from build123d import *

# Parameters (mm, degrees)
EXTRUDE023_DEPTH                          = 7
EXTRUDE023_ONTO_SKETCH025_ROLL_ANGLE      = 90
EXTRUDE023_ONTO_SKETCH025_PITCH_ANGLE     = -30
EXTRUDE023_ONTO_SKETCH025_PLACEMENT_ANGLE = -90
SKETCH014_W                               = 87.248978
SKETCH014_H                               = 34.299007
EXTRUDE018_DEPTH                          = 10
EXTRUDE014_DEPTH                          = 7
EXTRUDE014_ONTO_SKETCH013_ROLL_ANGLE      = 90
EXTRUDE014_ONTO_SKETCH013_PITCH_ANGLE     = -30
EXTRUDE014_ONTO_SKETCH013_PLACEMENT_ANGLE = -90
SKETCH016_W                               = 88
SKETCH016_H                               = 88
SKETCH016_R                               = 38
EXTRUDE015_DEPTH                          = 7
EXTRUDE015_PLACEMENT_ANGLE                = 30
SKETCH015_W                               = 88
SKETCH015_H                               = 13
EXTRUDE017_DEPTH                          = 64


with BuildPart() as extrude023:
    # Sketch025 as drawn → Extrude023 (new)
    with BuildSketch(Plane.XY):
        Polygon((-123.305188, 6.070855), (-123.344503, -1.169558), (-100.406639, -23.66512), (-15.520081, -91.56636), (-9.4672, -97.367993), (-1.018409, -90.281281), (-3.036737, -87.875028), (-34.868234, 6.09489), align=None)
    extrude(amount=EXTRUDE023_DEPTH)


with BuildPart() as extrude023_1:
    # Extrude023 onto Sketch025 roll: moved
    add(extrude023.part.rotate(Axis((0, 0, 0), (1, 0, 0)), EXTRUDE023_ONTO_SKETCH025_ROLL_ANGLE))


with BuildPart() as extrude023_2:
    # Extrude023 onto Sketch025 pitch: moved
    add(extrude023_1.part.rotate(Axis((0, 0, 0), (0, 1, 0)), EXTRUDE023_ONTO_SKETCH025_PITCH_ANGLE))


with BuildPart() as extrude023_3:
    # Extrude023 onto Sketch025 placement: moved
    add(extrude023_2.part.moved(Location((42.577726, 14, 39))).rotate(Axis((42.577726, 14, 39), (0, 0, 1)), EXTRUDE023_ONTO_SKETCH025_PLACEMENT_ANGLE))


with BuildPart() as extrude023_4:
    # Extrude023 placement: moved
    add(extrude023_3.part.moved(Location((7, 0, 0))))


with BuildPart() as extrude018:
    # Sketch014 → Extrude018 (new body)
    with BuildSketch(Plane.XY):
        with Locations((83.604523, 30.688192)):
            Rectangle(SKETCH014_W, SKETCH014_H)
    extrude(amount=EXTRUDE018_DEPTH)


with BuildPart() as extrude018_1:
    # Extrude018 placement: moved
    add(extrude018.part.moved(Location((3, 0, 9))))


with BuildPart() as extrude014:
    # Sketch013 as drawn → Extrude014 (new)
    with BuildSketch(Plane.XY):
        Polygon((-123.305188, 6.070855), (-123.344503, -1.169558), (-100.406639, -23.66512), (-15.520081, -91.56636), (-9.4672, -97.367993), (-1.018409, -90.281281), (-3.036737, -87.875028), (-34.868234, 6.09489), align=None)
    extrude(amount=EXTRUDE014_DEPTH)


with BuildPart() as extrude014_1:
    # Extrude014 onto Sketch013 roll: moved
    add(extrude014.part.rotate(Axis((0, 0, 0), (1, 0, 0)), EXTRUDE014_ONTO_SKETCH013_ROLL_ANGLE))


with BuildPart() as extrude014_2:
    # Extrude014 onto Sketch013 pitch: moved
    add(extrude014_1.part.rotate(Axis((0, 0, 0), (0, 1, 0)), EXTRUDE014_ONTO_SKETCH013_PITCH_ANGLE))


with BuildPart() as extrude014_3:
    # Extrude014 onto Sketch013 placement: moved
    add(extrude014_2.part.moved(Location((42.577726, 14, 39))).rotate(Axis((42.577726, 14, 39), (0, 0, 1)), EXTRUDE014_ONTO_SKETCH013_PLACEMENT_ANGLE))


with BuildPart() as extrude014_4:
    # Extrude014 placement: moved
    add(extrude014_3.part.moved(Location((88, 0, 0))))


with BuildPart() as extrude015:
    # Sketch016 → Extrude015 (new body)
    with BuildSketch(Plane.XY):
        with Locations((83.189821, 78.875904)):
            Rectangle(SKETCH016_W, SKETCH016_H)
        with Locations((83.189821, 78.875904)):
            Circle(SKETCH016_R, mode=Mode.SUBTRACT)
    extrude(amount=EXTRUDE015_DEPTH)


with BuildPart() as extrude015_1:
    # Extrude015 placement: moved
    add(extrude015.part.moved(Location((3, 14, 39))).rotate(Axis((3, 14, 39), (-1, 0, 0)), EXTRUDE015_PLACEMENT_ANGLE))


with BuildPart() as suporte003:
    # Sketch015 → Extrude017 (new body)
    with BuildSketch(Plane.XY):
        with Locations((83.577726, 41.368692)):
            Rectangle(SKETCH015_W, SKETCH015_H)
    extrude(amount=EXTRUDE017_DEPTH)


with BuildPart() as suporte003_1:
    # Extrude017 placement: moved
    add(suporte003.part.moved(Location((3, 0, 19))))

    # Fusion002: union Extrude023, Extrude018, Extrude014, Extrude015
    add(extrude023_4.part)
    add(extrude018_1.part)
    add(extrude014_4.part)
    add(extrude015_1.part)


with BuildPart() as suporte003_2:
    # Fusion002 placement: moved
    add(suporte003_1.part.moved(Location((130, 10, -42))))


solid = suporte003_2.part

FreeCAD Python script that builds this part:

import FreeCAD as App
import Part
import Sketcher
from FreeCAD import Vector
Q = App.Units.Quantity

doc = App.newDocument("Part")
params = doc.addObject("Spreadsheet::Sheet", "Params")
for row, (alias, value) in enumerate([
    ("pad1_length", "7 mm"),
    ("pad2_length", "10 mm"),
    ("pad3_length", "7 mm"),
    ("sketch4_diameter", "76 mm"),
    ("sketch4_width", "88 mm"),
    ("pad4_length", "7 mm"),
    ("sketch5_width", "88 mm"),
    ("sketch5_height", "13 mm"),
    ("pad5_length", "64 mm"),
], start=1):
    params.set(f"A{row}", alias)
    params.set(f"B{row}", "=" + value)
    params.setAlias(f"B{row}", alias)

body = doc.addObject("PartDesign::Body", "Body")

sketch1 = doc.addObject("Sketcher::SketchObject", "Sketch")
body.addObject(sketch1)
sketch1.AttachmentSupport = (doc.XY_Plane, [""])
sketch1.MapMode = "FlatFace"
sketch1.addGeometry([
    Part.LineSegment(Vector(-123.3, 6.1, 0), Vector(-123.3, -1.2, 0)),
    Part.LineSegment(Vector(-123.3, -1.2, 0), Vector(-100.4, -23.7, 0)),
    Part.LineSegment(Vector(-100.4, -23.7, 0), Vector(-15.5, -91.6, 0)),
    Part.LineSegment(Vector(-15.5, -91.6, 0), Vector(-9.5, -97.4, 0)),
    Part.LineSegment(Vector(-9.5, -97.4, 0), Vector(-1, -90.3, 0)),
    Part.LineSegment(Vector(-1, -90.3, 0), Vector(-3, -87.9, 0)),
    Part.LineSegment(Vector(-3, -87.9, 0), Vector(-34.9, 6.1, 0)),
    Part.LineSegment(Vector(-34.9, 6.1, 0), Vector(-123.3, 6.1, 0)),
], False)
sketch1.addConstraint([
    Sketcher.Constraint("Coincident", 0, 2, 1, 1),
    Sketcher.Constraint("Coincident", 1, 2, 2, 1),
    Sketcher.Constraint("Coincident", 2, 2, 3, 1),
    Sketcher.Constraint("Coincident", 3, 2, 4, 1),
    Sketcher.Constraint("Coincident", 4, 2, 5, 1),
    Sketcher.Constraint("Coincident", 5, 2, 6, 1),
    Sketcher.Constraint("Coincident", 6, 2, 7, 1),
    Sketcher.Constraint("Coincident", 7, 2, 0, 1),
    Sketcher.Constraint("Perpendicular", 4, 5),
    Sketcher.Constraint("Distance", 4, Q("11.0274 mm")),
    Sketcher.Constraint("DistanceX", 3, 2, -1, 1, Q("9.4672 mm")),
    Sketcher.Constraint("DistanceX", 1, 2, 5, 2, Q("97.369902 mm")),
    Sketcher.Constraint("Distance", 0, Q("7.24052 mm")),
    Sketcher.Constraint("Distance", 3, Q("8.38429 mm")),
    Sketcher.Constraint("DistanceY", 0, 2, -1, 1, Q("1.169558 mm")),
    Sketcher.Constraint("DistanceX", 1, 2, -1, 1, Q("100.406639 mm")),
    Sketcher.Constraint("DistanceY", 1, 2, -1, 1, Q("23.66512 mm")),
    Sketcher.Constraint("DistanceX", 2, 2, -1, 1, Q("15.520081 mm")),
    Sketcher.Constraint("DistanceY", 2, 2, -1, 1, Q("91.56636 mm")),
    Sketcher.Constraint("DistanceX", 4, 2, -1, 1, Q("1.018409 mm")),
    Sketcher.Constraint("DistanceY", -1, 1, 6, 2, Q("6.09489 mm")),
    Sketcher.Constraint("DistanceX", 7, 2, -1, 1, Q("123.305188 mm")),
    Sketcher.Constraint("DistanceX", 0, 2, 2, 2, Q("107.824422 mm")),
    Sketcher.Constraint("DistanceX", 0, 2, 6, 2, Q("88.476269 mm")),
])
pad1 = doc.addObject("PartDesign::Pad", "Pad")
body.addObject(pad1)
pad1.Profile = sketch1
pad1.setExpression("Length", "Params.pad1_length")
body2 = doc.addObject("PartDesign::Body", "Body001")
doc.recompute()

body.Placement = App.Placement(Vector(0, 0, 0), App.Rotation(Vector(1, 0, 0), 90))
boolean = doc.addObject("PartDesign::Boolean", "Boolean")
body2.addObject(boolean)
boolean.Type = "Fuse"
boolean.addObjects([body])
body3 = doc.addObject("PartDesign::Body", "Body002")
doc.recompute()

body2.Placement = App.Placement(Vector(0, 0, 0), App.Rotation(Vector(0, 1, 0), 330))
boolean2 = doc.addObject("PartDesign::Boolean", "Boolean001")
body3.addObject(boolean2)
boolean2.Type = "Fuse"
boolean2.addObjects([body2])
body4 = doc.addObject("PartDesign::Body", "Body003")
doc.recompute()

body3.Placement = App.Placement(Vector(42.577726, 14, 39), App.Rotation(Vector(0, 0, 1), 270))
boolean3 = doc.addObject("PartDesign::Boolean", "Boolean002")
body4.addObject(boolean3)
boolean3.Type = "Fuse"
boolean3.addObjects([body3])
body5 = doc.addObject("PartDesign::Body", "Body004")
doc.recompute()

body4.Placement = App.Placement(Vector(7, 0, 0), App.Rotation(Vector(0, 0, 1), 0))
boolean4 = doc.addObject("PartDesign::Boolean", "Boolean003")
body5.addObject(boolean4)
boolean4.Type = "Fuse"
boolean4.addObjects([body4])
body6 = doc.addObject("PartDesign::Body", "Body005")

sketch2 = doc.addObject("Sketcher::SketchObject", "Sketch001")
body6.addObject(sketch2)
sketch2.AttachmentSupport = (doc.getObject("XY_Plane005"), [""])
sketch2.MapMode = "FlatFace"
sketch2.addGeometry([
    Part.LineSegment(Vector(40, 48, 0), Vector(40, 14, 0)),
    Part.LineSegment(Vector(40, 14, 0), Vector(127, 14, 0)),
    Part.LineSegment(Vector(127, 14, 0), Vector(127, 48, 0)),
    Part.LineSegment(Vector(127, 48, 0), Vector(40, 48, 0)),
], False)
sketch2.addConstraint([
    Sketcher.Constraint("Coincident", 0, 2, 1, 1),
    Sketcher.Constraint("Coincident", 1, 2, 2, 1),
    Sketcher.Constraint("Coincident", 2, 2, 3, 1),
    Sketcher.Constraint("Coincident", 3, 2, 0, 1),
    Sketcher.Constraint("Vertical", 0),
    Sketcher.Constraint("Horizontal", 1),
    Sketcher.Constraint("Vertical", 2),
    Sketcher.Constraint("Horizontal", 3),
    Sketcher.Constraint("DistanceX", 1, 1, 1, 2, Q("87.248978 mm")),
    Sketcher.Constraint("DistanceY", 0, 2, 0, 1, Q("34.299007 mm")),
    Sketcher.Constraint("DistanceY", -1, 1, 0, 2, Q("13.538688 mm")),
    Sketcher.Constraint("DistanceX", -1, 1, 1, 2, Q("127.229012 mm")),
])
pad2 = doc.addObject("PartDesign::Pad", "Pad001")
body6.addObject(pad2)
pad2.Profile = sketch2
pad2.setExpression("Length", "Params.pad2_length")
body7 = doc.addObject("PartDesign::Body", "Body006")
doc.recompute()

body6.Placement = App.Placement(Vector(3, 0, 9), App.Rotation(Vector(0, 0, 1), 0))
boolean5 = doc.addObject("PartDesign::Boolean", "Boolean004")
body7.addObject(boolean5)
boolean5.Type = "Fuse"
boolean5.addObjects([body6])
body8 = doc.addObject("PartDesign::Body", "Body007")

sketch3 = doc.addObject("Sketcher::SketchObject", "Sketch002")
body8.addObject(sketch3)
sketch3.AttachmentSupport = (doc.getObject("XY_Plane007"), [""])
sketch3.MapMode = "FlatFace"
sketch3.addGeometry([
    Part.LineSegment(Vector(-123.3, 6.1, 0), Vector(-123.3, -1.2, 0)),
    Part.LineSegment(Vector(-123.3, -1.2, 0), Vector(-100.4, -23.7, 0)),
    Part.LineSegment(Vector(-100.4, -23.7, 0), Vector(-15.5, -91.6, 0)),
    Part.LineSegment(Vector(-15.5, -91.6, 0), Vector(-9.5, -97.4, 0)),
    Part.LineSegment(Vector(-9.5, -97.4, 0), Vector(-1, -90.3, 0)),
    Part.LineSegment(Vector(-1, -90.3, 0), Vector(-3, -87.9, 0)),
    Part.LineSegment(Vector(-3, -87.9, 0), Vector(-34.9, 6.1, 0)),
    Part.LineSegment(Vector(-34.9, 6.1, 0), Vector(-123.3, 6.1, 0)),
], False)
sketch3.addConstraint([
    Sketcher.Constraint("Coincident", 0, 2, 1, 1),
    Sketcher.Constraint("Coincident", 1, 2, 2, 1),
    Sketcher.Constraint("Coincident", 2, 2, 3, 1),
    Sketcher.Constraint("Coincident", 3, 2, 4, 1),
    Sketcher.Constraint("Coincident", 4, 2, 5, 1),
    Sketcher.Constraint("Coincident", 5, 2, 6, 1),
    Sketcher.Constraint("Coincident", 6, 2, 7, 1),
    Sketcher.Constraint("Coincident", 7, 2, 0, 1),
    Sketcher.Constraint("Perpendicular", 4, 5),
    Sketcher.Constraint("Distance", 4, Q("11.0274 mm")),
    Sketcher.Constraint("DistanceX", 3, 2, -1, 1, Q("9.4672 mm")),
    Sketcher.Constraint("DistanceX", 1, 2, 5, 2, Q("97.369902 mm")),
    Sketcher.Constraint("Distance", 0, Q("7.24052 mm")),
    Sketcher.Constraint("Distance", 3, Q("8.38429 mm")),
    Sketcher.Constraint("DistanceY", 0, 2, -1, 1, Q("1.169558 mm")),
    Sketcher.Constraint("DistanceX", 1, 2, -1, 1, Q("100.406639 mm")),
    Sketcher.Constraint("DistanceY", 1, 2, -1, 1, Q("23.66512 mm")),
    Sketcher.Constraint("DistanceX", 2, 2, -1, 1, Q("15.520081 mm")),
    Sketcher.Constraint("DistanceY", 2, 2, -1, 1, Q("91.56636 mm")),
    Sketcher.Constraint("DistanceX", 4, 2, -1, 1, Q("1.018409 mm")),
    Sketcher.Constraint("DistanceY", -1, 1, 6, 2, Q("6.09489 mm")),
    Sketcher.Constraint("DistanceX", 7, 2, -1, 1, Q("123.305188 mm")),
    Sketcher.Constraint("DistanceX", 0, 2, 2, 2, Q("107.824422 mm")),
    Sketcher.Constraint("DistanceX", 0, 2, 6, 2, Q("88.476269 mm")),
])
pad3 = doc.addObject("PartDesign::Pad", "Pad002")
body8.addObject(pad3)
pad3.Profile = sketch3
pad3.setExpression("Length", "Params.pad3_length")
body9 = doc.addObject("PartDesign::Body", "Body008")
doc.recompute()

body8.Placement = App.Placement(Vector(0, 0, 0), App.Rotation(Vector(1, 0, 0), 90))
boolean6 = doc.addObject("PartDesign::Boolean", "Boolean005")
body9.addObject(boolean6)
boolean6.Type = "Fuse"
boolean6.addObjects([body8])
body10 = doc.addObject("PartDesign::Body", "Body009")
doc.recompute()

body9.Placement = App.Placement(Vector(0, 0, 0), App.Rotation(Vector(0, 1, 0), 330))
boolean7 = doc.addObject("PartDesign::Boolean", "Boolean006")
body10.addObject(boolean7)
boolean7.Type = "Fuse"
boolean7.addObjects([body9])
body11 = doc.addObject("PartDesign::Body", "Body010")
doc.recompute()

body10.Placement = App.Placement(Vector(42.577726, 14, 39), App.Rotation(Vector(0, 0, 1), 270))
boolean8 = doc.addObject("PartDesign::Boolean", "Boolean007")
body11.addObject(boolean8)
boolean8.Type = "Fuse"
boolean8.addObjects([body10])
body12 = doc.addObject("PartDesign::Body", "Body011")
doc.recompute()

body11.Placement = App.Placement(Vector(88, 0, 0), App.Rotation(Vector(0, 0, 1), 0))
boolean9 = doc.addObject("PartDesign::Boolean", "Boolean008")
body12.addObject(boolean9)
boolean9.Type = "Fuse"
boolean9.addObjects([body11])
body13 = doc.addObject("PartDesign::Body", "Body012")

sketch4 = doc.addObject("Sketcher::SketchObject", "Sketch003")
body13.addObject(sketch4)
sketch4.AttachmentSupport = (doc.getObject("XY_Plane012"), [""])
sketch4.MapMode = "FlatFace"
sketch4.addGeometry([
    Part.LineSegment(Vector(39, 123, 0), Vector(39, 35, 0)),
    Part.LineSegment(Vector(39, 35, 0), Vector(127, 35, 0)),
    Part.LineSegment(Vector(127, 35, 0), Vector(127, 123, 0)),
    Part.LineSegment(Vector(127, 123, 0), Vector(39, 123, 0)),
    Part.Circle(Vector(83, 79, 0), Vector(0, 0, 1), 38),
], False)
sketch4.addConstraint([
    Sketcher.Constraint("Coincident", 0, 2, 1, 1),
    Sketcher.Constraint("Coincident", 1, 2, 2, 1),
    Sketcher.Constraint("Coincident", 2, 2, 3, 1),
    Sketcher.Constraint("Coincident", 3, 2, 0, 1),
    Sketcher.Constraint("Vertical", 0),
    Sketcher.Constraint("Horizontal", 1),
    Sketcher.Constraint("Vertical", 2),
    Sketcher.Constraint("Horizontal", 3),
    Sketcher.Constraint("Equal", 3, 0),
    Sketcher.Constraint("Diameter", 4, Q("76 mm")),
    Sketcher.Constraint("DistanceX", 1, 1, 1, 2, Q("88 mm")),
    Sketcher.Constraint("DistanceX", 0, 2, 4, 3, Q("44 mm")),
    Sketcher.Constraint("DistanceY", 0, 2, 4, 3, Q("44 mm")),
    Sketcher.Constraint("DistanceX", -1, 1, 4, 3, Q("83.189821 mm")),
    Sketcher.Constraint("DistanceY", -1, 1, 4, 3, Q("78.875904 mm")),
])
sketch4.setExpression("Constraints[9]", "Params.sketch4_diameter")
sketch4.setExpression("Constraints[10]", "Params.sketch4_width")
pad4 = doc.addObject("PartDesign::Pad", "Pad003")
body13.addObject(pad4)
pad4.Profile = sketch4
pad4.setExpression("Length", "Params.pad4_length")
body14 = doc.addObject("PartDesign::Body", "Body013")
doc.recompute()

body13.Placement = App.Placement(Vector(3, 14, 39), App.Rotation(Vector(-1, 0, 0), 30))
boolean10 = doc.addObject("PartDesign::Boolean", "Boolean009")
body14.addObject(boolean10)
boolean10.Type = "Fuse"
boolean10.addObjects([body13])
body15 = doc.addObject("PartDesign::Body", "Body014")

sketch5 = doc.addObject("Sketcher::SketchObject", "Sketch004")
body15.addObject(sketch5)
sketch5.AttachmentSupport = (doc.getObject("XY_Plane014"), [""])
sketch5.MapMode = "FlatFace"
sketch5.addGeometry([
    Part.LineSegment(Vector(40, 48, 0), Vector(40, 35, 0)),
    Part.LineSegment(Vector(40, 35, 0), Vector(128, 35, 0)),
    Part.LineSegment(Vector(128, 35, 0), Vector(128, 48, 0)),
    Part.LineSegment(Vector(128, 48, 0), Vector(40, 48, 0)),
], False)
sketch5.addConstraint([
    Sketcher.Constraint("Coincident", 0, 2, 1, 1),
    Sketcher.Constraint("Coincident", 1, 2, 2, 1),
    Sketcher.Constraint("Coincident", 2, 2, 3, 1),
    Sketcher.Constraint("Coincident", 3, 2, 0, 1),
    Sketcher.Constraint("Vertical", 0),
    Sketcher.Constraint("Horizontal", 1),
    Sketcher.Constraint("Vertical", 2),
    Sketcher.Constraint("Horizontal", 3),
    Sketcher.Constraint("DistanceX", 1, 1, 1, 2, Q("88 mm")),
    Sketcher.Constraint("DistanceY", 0, 2, 0, 1, Q("13 mm")),
    Sketcher.Constraint("DistanceX", -1, 1, 0, 2, Q("39.577726 mm")),
    Sketcher.Constraint("DistanceY", -1, 1, 0, 2, Q("34.868692 mm")),
])
sketch5.setExpression("Constraints[8]", "Params.sketch5_width")
sketch5.setExpression("Constraints[9]", "Params.sketch5_height")
pad5 = doc.addObject("PartDesign::Pad", "Pad004")
body15.addObject(pad5)
pad5.Profile = sketch5
pad5.setExpression("Length", "Params.pad5_length")
body16 = doc.addObject("PartDesign::Body", "Body015")
doc.recompute()

body15.Placement = App.Placement(Vector(3, 0, 19), App.Rotation(Vector(0, 0, 1), 0))
boolean11 = doc.addObject("PartDesign::Boolean", "Boolean010")
body16.addObject(boolean11)
boolean11.Type = "Fuse"
boolean11.addObjects([body15])
doc.recompute()

boolean12 = doc.addObject("PartDesign::Boolean", "Boolean011")
body16.addObject(boolean12)
boolean12.Type = "Fuse"
boolean12.addObjects([body5])
doc.recompute()

boolean13 = doc.addObject("PartDesign::Boolean", "Boolean012")
body16.addObject(boolean13)
boolean13.Type = "Fuse"
boolean13.addObjects([body7])
doc.recompute()

boolean14 = doc.addObject("PartDesign::Boolean", "Boolean013")
body16.addObject(boolean14)
boolean14.Type = "Fuse"
boolean14.addObjects([body12])
doc.recompute()

boolean15 = doc.addObject("PartDesign::Boolean", "Boolean014")
body16.addObject(boolean15)
boolean15.Type = "Fuse"
boolean15.addObjects([body14])
body17 = doc.addObject("PartDesign::Body", "Body016")
doc.recompute()

body16.Placement = App.Placement(Vector(130, 10, -42), App.Rotation(Vector(0, 0, 1), 0))
boolean16 = doc.addObject("PartDesign::Boolean", "Boolean015")
body17.addObject(boolean16)
boolean16.Type = "Fuse"
boolean16.addObjects([body16])

doc.recompute()
